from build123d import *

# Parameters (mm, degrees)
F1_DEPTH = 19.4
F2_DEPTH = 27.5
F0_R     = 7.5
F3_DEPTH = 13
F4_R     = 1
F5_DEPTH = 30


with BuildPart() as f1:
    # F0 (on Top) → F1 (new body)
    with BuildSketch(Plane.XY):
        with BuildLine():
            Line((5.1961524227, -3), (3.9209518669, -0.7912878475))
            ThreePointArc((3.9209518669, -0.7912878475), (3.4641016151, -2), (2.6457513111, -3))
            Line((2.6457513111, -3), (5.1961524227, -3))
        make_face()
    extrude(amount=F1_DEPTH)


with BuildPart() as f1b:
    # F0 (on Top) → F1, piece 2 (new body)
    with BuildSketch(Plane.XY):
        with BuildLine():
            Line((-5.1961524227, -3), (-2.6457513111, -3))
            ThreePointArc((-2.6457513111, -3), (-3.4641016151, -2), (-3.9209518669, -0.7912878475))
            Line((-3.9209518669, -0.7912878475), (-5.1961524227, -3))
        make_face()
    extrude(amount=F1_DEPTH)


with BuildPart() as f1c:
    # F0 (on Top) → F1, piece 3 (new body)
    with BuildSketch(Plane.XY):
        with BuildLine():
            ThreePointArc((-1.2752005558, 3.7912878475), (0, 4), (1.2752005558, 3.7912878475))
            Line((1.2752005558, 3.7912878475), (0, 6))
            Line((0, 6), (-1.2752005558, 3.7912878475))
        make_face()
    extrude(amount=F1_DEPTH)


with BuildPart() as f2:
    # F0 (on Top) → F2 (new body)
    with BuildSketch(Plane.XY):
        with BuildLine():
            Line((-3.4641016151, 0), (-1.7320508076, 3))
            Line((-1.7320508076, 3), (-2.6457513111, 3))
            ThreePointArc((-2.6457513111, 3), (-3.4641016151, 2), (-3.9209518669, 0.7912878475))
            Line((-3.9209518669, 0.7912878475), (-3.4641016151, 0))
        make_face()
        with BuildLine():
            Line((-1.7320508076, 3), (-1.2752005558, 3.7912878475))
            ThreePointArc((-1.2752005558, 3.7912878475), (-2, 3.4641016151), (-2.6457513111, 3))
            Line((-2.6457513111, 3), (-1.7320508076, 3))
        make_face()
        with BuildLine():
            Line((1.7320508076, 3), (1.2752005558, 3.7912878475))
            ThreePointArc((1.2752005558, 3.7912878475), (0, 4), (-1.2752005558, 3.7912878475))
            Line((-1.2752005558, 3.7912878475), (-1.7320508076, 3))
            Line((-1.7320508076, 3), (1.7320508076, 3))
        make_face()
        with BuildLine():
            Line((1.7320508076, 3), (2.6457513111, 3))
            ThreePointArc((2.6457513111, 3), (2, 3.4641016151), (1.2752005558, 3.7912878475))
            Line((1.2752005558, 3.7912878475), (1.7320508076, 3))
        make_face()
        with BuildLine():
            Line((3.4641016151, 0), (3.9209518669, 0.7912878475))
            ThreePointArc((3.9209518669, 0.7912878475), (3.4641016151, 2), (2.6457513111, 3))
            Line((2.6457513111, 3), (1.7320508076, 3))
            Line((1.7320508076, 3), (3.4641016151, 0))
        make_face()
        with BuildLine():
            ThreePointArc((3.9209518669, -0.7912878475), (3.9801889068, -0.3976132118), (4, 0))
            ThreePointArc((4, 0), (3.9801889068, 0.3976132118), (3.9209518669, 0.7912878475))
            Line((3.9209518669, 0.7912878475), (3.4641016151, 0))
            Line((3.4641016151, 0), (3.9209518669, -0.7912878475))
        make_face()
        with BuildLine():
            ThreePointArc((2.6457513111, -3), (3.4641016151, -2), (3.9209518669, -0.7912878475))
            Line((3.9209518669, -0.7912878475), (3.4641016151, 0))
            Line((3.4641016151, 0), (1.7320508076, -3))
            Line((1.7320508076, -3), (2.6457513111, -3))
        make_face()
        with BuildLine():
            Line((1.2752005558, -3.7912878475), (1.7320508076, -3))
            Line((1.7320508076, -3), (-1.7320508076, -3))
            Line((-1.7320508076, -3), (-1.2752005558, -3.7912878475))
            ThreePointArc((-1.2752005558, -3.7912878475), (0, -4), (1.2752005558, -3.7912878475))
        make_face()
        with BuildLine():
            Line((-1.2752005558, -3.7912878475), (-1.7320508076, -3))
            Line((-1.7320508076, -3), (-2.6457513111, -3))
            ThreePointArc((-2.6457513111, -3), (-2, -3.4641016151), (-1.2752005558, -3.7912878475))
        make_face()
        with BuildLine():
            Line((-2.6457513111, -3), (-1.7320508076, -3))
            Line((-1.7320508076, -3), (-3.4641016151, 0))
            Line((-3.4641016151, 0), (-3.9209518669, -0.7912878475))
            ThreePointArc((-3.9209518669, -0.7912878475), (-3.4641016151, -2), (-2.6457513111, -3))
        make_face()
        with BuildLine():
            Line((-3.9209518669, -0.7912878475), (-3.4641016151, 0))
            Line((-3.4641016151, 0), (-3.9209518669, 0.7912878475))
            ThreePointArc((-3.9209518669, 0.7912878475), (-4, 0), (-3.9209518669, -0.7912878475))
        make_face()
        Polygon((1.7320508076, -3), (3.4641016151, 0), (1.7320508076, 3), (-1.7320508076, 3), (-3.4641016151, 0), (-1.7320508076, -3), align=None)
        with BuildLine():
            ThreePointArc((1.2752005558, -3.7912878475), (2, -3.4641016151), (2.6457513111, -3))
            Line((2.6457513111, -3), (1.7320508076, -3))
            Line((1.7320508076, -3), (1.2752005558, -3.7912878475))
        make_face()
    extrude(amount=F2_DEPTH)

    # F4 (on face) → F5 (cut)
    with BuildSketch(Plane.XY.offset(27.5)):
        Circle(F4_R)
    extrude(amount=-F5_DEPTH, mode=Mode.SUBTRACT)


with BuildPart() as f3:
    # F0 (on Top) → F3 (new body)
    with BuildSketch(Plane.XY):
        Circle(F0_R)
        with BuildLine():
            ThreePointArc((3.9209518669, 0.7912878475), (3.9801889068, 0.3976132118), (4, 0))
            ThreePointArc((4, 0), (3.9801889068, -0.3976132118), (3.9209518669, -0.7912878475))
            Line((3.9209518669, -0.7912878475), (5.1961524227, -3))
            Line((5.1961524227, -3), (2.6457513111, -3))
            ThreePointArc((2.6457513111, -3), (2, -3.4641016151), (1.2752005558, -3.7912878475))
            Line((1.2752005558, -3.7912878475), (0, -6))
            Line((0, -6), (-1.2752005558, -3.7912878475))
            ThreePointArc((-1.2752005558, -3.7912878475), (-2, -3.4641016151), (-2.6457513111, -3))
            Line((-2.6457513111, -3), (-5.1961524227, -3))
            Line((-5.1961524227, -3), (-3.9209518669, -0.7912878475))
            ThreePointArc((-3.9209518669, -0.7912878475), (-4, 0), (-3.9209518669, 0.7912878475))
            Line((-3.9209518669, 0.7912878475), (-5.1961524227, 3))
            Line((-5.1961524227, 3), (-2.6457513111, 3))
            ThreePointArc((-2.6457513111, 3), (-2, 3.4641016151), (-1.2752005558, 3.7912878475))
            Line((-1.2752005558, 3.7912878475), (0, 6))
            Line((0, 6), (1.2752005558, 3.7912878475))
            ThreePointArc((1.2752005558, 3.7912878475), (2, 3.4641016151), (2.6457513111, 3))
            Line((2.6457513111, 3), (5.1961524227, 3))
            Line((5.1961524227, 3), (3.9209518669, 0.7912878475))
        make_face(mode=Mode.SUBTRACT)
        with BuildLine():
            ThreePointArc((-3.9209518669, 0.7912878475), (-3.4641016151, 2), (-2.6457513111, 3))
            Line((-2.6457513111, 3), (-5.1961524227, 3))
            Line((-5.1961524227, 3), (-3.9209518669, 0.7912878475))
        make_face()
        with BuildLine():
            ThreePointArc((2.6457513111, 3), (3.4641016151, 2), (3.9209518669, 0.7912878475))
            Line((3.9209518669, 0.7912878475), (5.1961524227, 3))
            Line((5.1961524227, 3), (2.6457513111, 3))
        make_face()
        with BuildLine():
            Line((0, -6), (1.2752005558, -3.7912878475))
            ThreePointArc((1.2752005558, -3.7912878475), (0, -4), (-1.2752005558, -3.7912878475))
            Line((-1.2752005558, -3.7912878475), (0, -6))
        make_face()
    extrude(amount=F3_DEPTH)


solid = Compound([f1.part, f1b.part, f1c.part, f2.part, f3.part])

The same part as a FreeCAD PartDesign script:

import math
import FreeCAD as App
import Part
import Sketcher
Q = App.Units.Quantity

doc = App.newDocument("Part")
body = doc.addObject("PartDesign::Body", "Body")

sketch1 = body.newObject("Sketcher::SketchObject", "Sketch")
sketch1.AttachmentSupport = (doc.getObject("XY_Plane"), [""])
sketch1.MapMode = "FlatFace"
sketch1.addGeometry(Part.LineSegment(App.Vector(5.2, -3, 0), App.Vector(3.9, -0.8, 0)), False)
sketch1.addGeometry(Part.ArcOfCircle(Part.Circle(App.Vector(0, 0, 0), App.Vector(0, 0, 1), 4), math.radians(-49), math.radians(-11)), False)
sketch1.addGeometry(Part.LineSegment(App.Vector(2.6, -3, 0), App.Vector(5.2, -3, 0)), False)
sketch1.addConstraint(Sketcher.Constraint("Coincident", 0, 2, 1, 2))
sketch1.addConstraint(Sketcher.Constraint("Coincident", 1, 1, 2, 1))
sketch1.addConstraint(Sketcher.Constraint("Coincident", 2, 2, 0, 1))
sketch1.addConstraint(Sketcher.Constraint("Horizontal", 2))
sketch1.addConstraint(Sketcher.Constraint("Coincident", 1, 3, -1, 1))
sketch1.addConstraint(Sketcher.Constraint("Radius", 1, Q("4 mm")))
sketch1.addConstraint(Sketcher.Constraint("Angle", 0, Q("120 deg")))
sketch1.addConstraint(Sketcher.Constraint("DistanceY", 1, 1, -1, 1, Q("3 mm")))
sketch1.addConstraint(Sketcher.Constraint("DistanceX", 2, 1, 2, 2, Q("2.550401 mm")))
pad1 = body.newObject("PartDesign::Pad", "Pad")
pad1.Profile = sketch1
pad1.Length = 19.4
body2 = doc.addObject("PartDesign::Body", "Body001")

sketch2 = body2.newObject("Sketcher::SketchObject", "Sketch001")
sketch2.AttachmentSupport = (doc.getObject("XY_Plane001"), [""])
sketch2.MapMode = "FlatFace"
sketch2.addGeometry(Part.LineSegment(App.Vector(-5.2, -3, 0), App.Vector(-2.6, -3, 0)), False)
sketch2.addGeometry(Part.ArcOfCircle(Part.Circle(App.Vector(0, 0, 0), App.Vector(0, 0, 1), 4), math.radians(-169), math.radians(-131)), False)
sketch2.addGeometry(Part.LineSegment(App.Vector(-3.9, -0.8, 0), App.Vector(-5.2, -3, 0)), False)
sketch2.addConstraint(Sketcher.Constraint("Coincident", 0, 2, 1, 2))
sketch2.addConstraint(Sketcher.Constraint("Coincident", 1, 1, 2, 1))
sketch2.addConstraint(Sketcher.Constraint("Coincident", 2, 2, 0, 1))
sketch2.addConstraint(Sketcher.Constraint("Horizontal", 0))
sketch2.addConstraint(Sketcher.Constraint("Coincident", 1, 3, -1, 1))
sketch2.addConstraint(Sketcher.Constraint("Radius", 1, Q("4 mm")))
sketch2.addConstraint(Sketcher.Constraint("Angle", 2, Q("-120 deg")))
sketch2.addConstraint(Sketcher.Constraint("DistanceY", 0, 2, -1, 1, Q("3 mm")))
sketch2.addConstraint(Sketcher.Constraint("DistanceX", 0, 1, 0, 2, Q("2.550401 mm")))
pad2 = body2.newObject("PartDesign::Pad", "Pad001")
pad2.Profile = sketch2
pad2.Length = 19.4
body3 = doc.addObject("PartDesign::Body", "Body002")

sketch3 = body3.newObject("Sketcher::SketchObject", "Sketch002")
sketch3.AttachmentSupport = (doc.getObject("XY_Plane002"), [""])
sketch3.MapMode = "FlatFace"
sketch3.addGeometry(Part.ArcOfCircle(Part.Circle(App.Vector(0, 0, 0), App.Vector(0, 0, 1), 4), math.radians(71), math.radians(109)), False)
sketch3.addGeometry(Part.LineSegment(App.Vector(1.3, 3.8, 0), App.Vector(0, 6, 0)), False)
sketch3.addGeometry(Part.LineSegment(App.Vector(0, 6, 0), App.Vector(-1.3, 3.8, 0)), False)
sketch3.addConstraint(Sketcher.Constraint("Coincident", 0, 1, 1, 1))
sketch3.addConstraint(Sketcher.Constraint("Coincident", 1, 2, 2, 1))
sketch3.addConstraint(Sketcher.Constraint("Coincident", 2, 2, 0, 2))
sketch3.addConstraint(Sketcher.Constraint("Coincident", 0, 3, -1, 1))
sketch3.addConstraint(Sketcher.Constraint("PointOnObject", 1, 2, -2))
sketch3.addConstraint(Sketcher.Constraint("Horizontal", 0, 1, 2, 2))
sketch3.addConstraint(Sketcher.Constraint("Radius", 0, Q("4 mm")))
sketch3.addConstraint(Sketcher.Constraint("Angle", 1, Q("120 deg")))
sketch3.addConstraint(Sketcher.Constraint("DistanceY", -1, 1, 1, 2, Q("6 mm")))
pad3 = body3.newObject("PartDesign::Pad", "Pad002")
pad3.Profile = sketch3
pad3.Length = 19.4
body4 = doc.addObject("PartDesign::Body", "Body003")

sketch4 = body4.newObject("Sketcher::SketchObject", "Sketch003")
sketch4.AttachmentSupport = (doc.getObject("XY_Plane003"), [""])
sketch4.MapMode = "FlatFace"
sketch4.addGeometry(Part.ArcOfCircle(Part.Circle(App.Vector(0, 0, 0), App.Vector(0, 0, 1), 4), math.radians(-49), math.radians(-11)), False)
sketch4.addGeometry(Part.ArcOfCircle(Part.Circle(App.Vector(0, 0, 0), App.Vector(0, 0, 1), 4), math.radians(-11.41), math.radians(0)), False)
sketch4.addGeometry(Part.ArcOfCircle(Part.Circle(App.Vector(0, 0, 0), App.Vector(0, 0, 1), 4), math.radians(0), math.radians(11.41)), False)
sketch4.addGeometry(Part.ArcOfCircle(Part.Circle(App.Vector(0, 0, 0), App.Vector(0, 0, 1), 4), math.radians(11), math.radians(49)), False)
sketch4.addGeometry(Part.ArcOfCircle(Part.Circle(App.Vector(0, 0, 0), App.Vector(0, 0, 1), 4), math.radians(49), math.radians(71)), False)
sketch4.addGeometry(Part.ArcOfCircle(Part.Circle(App.Vector(0, 0, 0), App.Vector(0, 0, 1), 4), math.radians(71), math.radians(109)), False)
sketch4.addGeometry(Part.ArcOfCircle(Part.Circle(App.Vector(0, 0, 0), App.Vector(0, 0, 1), 4), math.radians(109), math.radians(131)), False)
sketch4.addGeometry(Part.ArcOfCircle(Part.Circle(App.Vector(0, 0, 0), App.Vector(0, 0, 1), 4), math.radians(131), math.radians(169)), False)
sketch4.addGeometry(Part.ArcOfCircle(Part.Circle(App.Vector(0, 0, 0), App.Vector(0, 0, 1), 4), math.radians(169), math.radians(191)), False)
sketch4.addGeometry(Part.ArcOfCircle(Part.Circle(App.Vector(0, 0, 0), App.Vector(0, 0, 1), 4), math.radians(-169), math.radians(-131)), False)
sketch4.addGeometry(Part.ArcOfCircle(Part.Circle(App.Vector(0, 0, 0), App.Vector(0, 0, 1), 4), math.radians(-131), math.radians(-109)), False)
sketch4.addGeometry(Part.ArcOfCircle(Part.Circle(App.Vector(0, 0, 0), App.Vector(0, 0, 1), 4), math.radians(-109), math.radians(-71)), False)
sketch4.addGeometry(Part.ArcOfCircle(Part.Circle(App.Vector(0, 0, 0), App.Vector(0, 0, 1), 4), math.radians(-71), math.radians(-49)), False)
sketch4.addConstraint(Sketcher.Constraint("Tangent", 0, 2, 1, 1))
sketch4.addConstraint(Sketcher.Constraint("Tangent", 1, 2, 2, 1))
sketch4.addConstraint(Sketcher.Constraint("Tangent", 2, 2, 3, 1))
sketch4.addConstraint(Sketcher.Constraint("Tangent", 3, 2, 4, 1))
sketch4.addConstraint(Sketcher.Constraint("Tangent", 4, 2, 5, 1))
sketch4.addConstraint(Sketcher.Constraint("Tangent", 5, 2, 6, 1))
sketch4.addConstraint(Sketcher.Constraint("Tangent", 6, 2, 7, 1))
sketch4.addConstraint(Sketcher.Constraint("Tangent", 7, 2, 8, 1))
sketch4.addConstraint(Sketcher.Constraint("Tangent", 8, 2, 9, 1))
sketch4.addConstraint(Sketcher.Constraint("Tangent", 9, 2, 10, 1))
sketch4.addConstraint(Sketcher.Constraint("Tangent", 10, 2, 11, 1))
sketch4.addConstraint(Sketcher.Constraint("Tangent", 11, 2, 12, 1))
sketch4.addConstraint(Sketcher.Constraint("Tangent", 12, 2, 0, 1))
sketch4.addConstraint(Sketcher.Constraint("Coincident", 0, 3, -1, 1))
sketch4.addConstraint(Sketcher.Constraint("Coincident", 2, 3, -1, 1))
sketch4.addConstraint(Sketcher.Constraint("Coincident", 4, 3, -1, 1))
sketch4.addConstraint(Sketcher.Constraint("Coincident", 6, 3, -1, 1))
sketch4.addConstraint(Sketcher.Constraint("Coincident", 8, 3, -1, 1))
sketch4.addConstraint(Sketcher.Constraint("Coincident", 10, 3, -1, 1))
sketch4.addConstraint(Sketcher.Constraint("PointOnObject", 1, 2, -1))
sketch4.addConstraint(Sketcher.Constraint("Horizontal", 4, 2, 5, 2))
sketch4.addConstraint(Sketcher.Constraint("Horizontal", 3, 2, 6, 2))
sketch4.addConstraint(Sketcher.Constraint("Horizontal", 2, 2, 7, 2))
sketch4.addConstraint(Sketcher.Constraint("Horizontal", 0, 2, 8, 2))
sketch4.addConstraint(Sketcher.Constraint("Horizontal", 10, 2, 11, 2))
sketch4.addConstraint(Sketcher.Constraint("Horizontal", 9, 2, 12, 2))
sketch4.addConstraint(Sketcher.Constraint("Vertical", 0, 2, 2, 2))
sketch4.addConstraint(Sketcher.Constraint("Vertical", 6, 2, 9, 2))
sketch4.addConstraint(Sketcher.Constraint("Vertical", 5, 2, 10, 2))
sketch4.addConstraint(Sketcher.Constraint("Radius", 0, Q("4 mm")))
sketch4.addConstraint(Sketcher.Constraint("DistanceY", -1, 1, 3, 2, Q("3 mm")))
sketch4.addConstraint(Sketcher.Constraint("DistanceY", 2, 2, 4, 2, Q("3 mm")))
sketch4.addConstraint(Sketcher.Constraint("DistanceX", -1, 1, 4, 2, Q("1.275201 mm")))
pad4 = body4.newObject("PartDesign::Pad", "Pad003")
pad4.Profile = sketch4
pad4.Length = 27.5

sketch5 = body4.newObject("Sketcher::SketchObject", "Sketch004")
sketch5.AttachmentSupport = (doc.getObject("XY_Plane003"), [""])
sketch5.MapMode = "FlatFace"
sketch5.AttachmentOffset = App.Placement(App.Vector(0, 0, 27.5), App.Rotation())
sketch5.addGeometry(Part.Circle(App.Vector(0, 0, 0), App.Vector(0, 0, 1), 1), False)
sketch5.addConstraint(Sketcher.Constraint("Coincident", 0, 3, -1, 1))
sketch5.addConstraint(Sketcher.Constraint("Diameter", 0, Q("2 mm")))
pocket1 = body4.newObject("PartDesign::Pocket", "Pocket")
pocket1.Profile = sketch5
pocket1.Length = 30
body5 = doc.addObject("PartDesign::Body", "Body004")

sketch6 = body5.newObject("Sketcher::SketchObject", "Sketch005")
sketch6.AttachmentSupport = (doc.getObject("XY_Plane004"), [""])
sketch6.MapMode = "FlatFace"
sketch6.addGeometry(Part.Circle(App.Vector(0, 0, 0), App.Vector(0, 0, 1), 7.5), False)
sketch6.addGeometry(Part.ArcOfCircle(Part.Circle(App.Vector(0, 0, 0), App.Vector(0, 0, 1), 4), math.radians(0), math.radians(11.41)), False)
sketch6.addGeometry(Part.ArcOfCircle(Part.Circle(App.Vector(0, 0, 0), App.Vector(0, 0, 1), 4), math.radians(-11.41), math.radians(0)), False)
sketch6.addGeometry(Part.LineSegment(App.Vector(3.9, -0.8, 0), App.Vector(5.2, -3, 0)), False)
sketch6.addGeometry(Part.LineSegment(App.Vector(5.2, -3, 0), App.Vector(2.6, -3, 0)), False)
sketch6.addGeometry(Part.ArcOfCircle(Part.Circle(App.Vector(0, 0, 0), App.Vector(0, 0, 1), 4), math.radians(-71), math.radians(-49)), False)
sketch6.addGeometry(Part.ArcOfCircle(Part.Circle(App.Vector(0, 0, 0), App.Vector(0, 0, 1), 4), math.radians(-109), math.radians(-71)), False)
sketch6.addGeometry(Part.ArcOfCircle(Part.Circle(App.Vector(0, 0, 0), App.Vector(0, 0, 1), 4), math.radians(-131), math.radians(-109)), False)
sketch6.addGeometry(Part.LineSegment(App.Vector(-2.6, -3, 0), App.Vector(-5.2, -3, 0)), False)
sketch6.addGeometry(Part.LineSegment(App.Vector(-5.2, -3, 0), App.Vector(-3.9, -0.8, 0)), False)
sketch6.addGeometry(Part.ArcOfCircle(Part.Circle(App.Vector(0, 0, 0), App.Vector(0, 0, 1), 4), math.radians(169), math.radians(191)), False)
sketch6.addGeometry(Part.ArcOfCircle(Part.Circle(App.Vector(0, 0, 0), App.Vector(0, 0, 1), 4), math.radians(131), math.radians(169)), False)
sketch6.addGeometry(Part.ArcOfCircle(Part.Circle(App.Vector(0, 0, 0), App.Vector(0, 0, 1), 4), math.radians(109), math.radians(131)), False)
sketch6.addGeometry(Part.LineSegment(App.Vector(-1.3, 3.8, 0), App.Vector(0, 6, 0)), False)
sketch6.addGeometry(Part.LineSegment(App.Vector(0, 6, 0), App.Vector(1.3, 3.8, 0)), False)
sketch6.addGeometry(Part.ArcOfCircle(Part.Circle(App.Vector(0, 0, 0), App.Vector(0, 0, 1), 4), math.radians(49), math.radians(71)), False)
sketch6.addGeometry(Part.ArcOfCircle(Part.Circle(App.Vector(0, 0, 0), App.Vector(0, 0, 1), 4), math.radians(11), math.radians(49)), False)
sketch6.addConstraint(Sketcher.Constraint("Tangent", 1, 1, 2, 2))
sketch6.addConstraint(Sketcher.Constraint("Coincident", 2, 1, 3, 1))
sketch6.addConstraint(Sketcher.Constraint("Coincident", 3, 2, 4, 1))
sketch6.addConstraint(Sketcher.Constraint("Coincident", 4, 2, 5, 2))
sketch6.addConstraint(Sketcher.Constraint("Tangent", 5, 1, 6, 2))
sketch6.addConstraint(Sketcher.Constraint("Tangent", 6, 1, 7, 2))
sketch6.addConstraint(Sketcher.Constraint("Coincident", 7, 1, 8, 1))
sketch6.addConstraint(Sketcher.Constraint("Coincident", 8, 2, 9, 1))
sketch6.addConstraint(Sketcher.Constraint("Coincident", 9, 2, 10, 2))
sketch6.addConstraint(Sketcher.Constraint("Tangent", 10, 1, 11, 2))
sketch6.addConstraint(Sketcher.Constraint("Tangent", 11, 1, 12, 2))
sketch6.addConstraint(Sketcher.Constraint("Coincident", 12, 1, 13, 1))
sketch6.addConstraint(Sketcher.Constraint("Coincident", 13, 2, 14, 1))
sketch6.addConstraint(Sketcher.Constraint("Coincident", 14, 2, 15, 2))
sketch6.addConstraint(Sketcher.Constraint("Tangent", 15, 1, 16, 2))
sketch6.addConstraint(Sketcher.Constraint("Tangent", 16, 1, 1, 2))
sketch6.addConstraint(Sketcher.Constraint("Horizontal", 4))
sketch6.addConstraint(Sketcher.Constraint("Horizontal", 8))
sketch6.addConstraint(Sketcher.Constraint("Coincident", 0, 3, -1, 1))
sketch6.addConstraint(Sketcher.Constraint("Coincident", 1, 3, -1, 1))
sketch6.addConstraint(Sketcher.Constraint("Coincident", 5, 3, -1, 1))
sketch6.addConstraint(Sketcher.Constraint("Coincident", 7, 3, -1, 1))
sketch6.addConstraint(Sketcher.Constraint("Coincident", 10, 3, -1, 1))
sketch6.addConstraint(Sketcher.Constraint("Coincident", 12, 3, -1, 1))
sketch6.addConstraint(Sketcher.Constraint("Coincident", 15, 3, -1, 1))
sketch6.addConstraint(Sketcher.Constraint("Equal", 1, 2))
sketch6.addConstraint(Sketcher.Constraint("Equal", 2, 5))
sketch6.addConstraint(Sketcher.Constraint("Equal", 7, 10))
sketch6.addConstraint(Sketcher.Constraint("Symmetric", 3, 2, 8, 2, -2))
sketch6.addConstraint(Sketcher.Constraint("PointOnObject", 1, 1, -1))
sketch6.addConstraint(Sketcher.Constraint("PointOnObject", 13, 2, -2))
sketch6.addConstraint(Sketcher.Constraint("Parallel", 9, 13))
sketch6.addConstraint(Sketcher.Constraint("Parallel", 3, 14))
sketch6.addConstraint(Sketcher.Constraint("Horizontal", 5, 1, 6, 1))
sketch6.addConstraint(Sketcher.Constraint("Horizontal", 2, 1, 9, 2))
sketch6.addConstraint(Sketcher.Constraint("Horizontal", 11, 1, 15, 1))
sketch6.addConstraint(Sketcher.Constraint("Horizontal", 10, 1, 16, 1))
sketch6.addConstraint(Sketcher.Constraint("Vertical", 9, 2, 10, 1))
sketch6.addConstraint(Sketcher.Constraint("Vertical", 7, 1, 11, 1))
sketch6.addConstraint(Sketcher.Constraint("Vertical", 6, 1, 12, 1))
sketch6.addConstraint(Sketcher.Constraint("Equal", 9, 13))
sketch6.addConstraint(Sketcher.Constraint("Diameter", 0, Q("15 mm")))
sketch6.addConstraint(Sketcher.Constraint("Radius", 1, Q("4 mm")))
sketch6.addConstraint(Sketcher.Constraint("Angle", 3, Q("-60 deg")))
sketch6.addConstraint(Sketcher.Constraint("DistanceY", 3, 2, -1, 1, Q("3 mm")))
sketch6.addConstraint(Sketcher.Constraint("DistanceY", -1, 1, 13, 2, Q("6 mm")))
pad5 = body5.newObject("PartDesign::Pad", "Pad004")
pad5.Profile = sketch6
pad5.Length = 13

doc.recompute()
